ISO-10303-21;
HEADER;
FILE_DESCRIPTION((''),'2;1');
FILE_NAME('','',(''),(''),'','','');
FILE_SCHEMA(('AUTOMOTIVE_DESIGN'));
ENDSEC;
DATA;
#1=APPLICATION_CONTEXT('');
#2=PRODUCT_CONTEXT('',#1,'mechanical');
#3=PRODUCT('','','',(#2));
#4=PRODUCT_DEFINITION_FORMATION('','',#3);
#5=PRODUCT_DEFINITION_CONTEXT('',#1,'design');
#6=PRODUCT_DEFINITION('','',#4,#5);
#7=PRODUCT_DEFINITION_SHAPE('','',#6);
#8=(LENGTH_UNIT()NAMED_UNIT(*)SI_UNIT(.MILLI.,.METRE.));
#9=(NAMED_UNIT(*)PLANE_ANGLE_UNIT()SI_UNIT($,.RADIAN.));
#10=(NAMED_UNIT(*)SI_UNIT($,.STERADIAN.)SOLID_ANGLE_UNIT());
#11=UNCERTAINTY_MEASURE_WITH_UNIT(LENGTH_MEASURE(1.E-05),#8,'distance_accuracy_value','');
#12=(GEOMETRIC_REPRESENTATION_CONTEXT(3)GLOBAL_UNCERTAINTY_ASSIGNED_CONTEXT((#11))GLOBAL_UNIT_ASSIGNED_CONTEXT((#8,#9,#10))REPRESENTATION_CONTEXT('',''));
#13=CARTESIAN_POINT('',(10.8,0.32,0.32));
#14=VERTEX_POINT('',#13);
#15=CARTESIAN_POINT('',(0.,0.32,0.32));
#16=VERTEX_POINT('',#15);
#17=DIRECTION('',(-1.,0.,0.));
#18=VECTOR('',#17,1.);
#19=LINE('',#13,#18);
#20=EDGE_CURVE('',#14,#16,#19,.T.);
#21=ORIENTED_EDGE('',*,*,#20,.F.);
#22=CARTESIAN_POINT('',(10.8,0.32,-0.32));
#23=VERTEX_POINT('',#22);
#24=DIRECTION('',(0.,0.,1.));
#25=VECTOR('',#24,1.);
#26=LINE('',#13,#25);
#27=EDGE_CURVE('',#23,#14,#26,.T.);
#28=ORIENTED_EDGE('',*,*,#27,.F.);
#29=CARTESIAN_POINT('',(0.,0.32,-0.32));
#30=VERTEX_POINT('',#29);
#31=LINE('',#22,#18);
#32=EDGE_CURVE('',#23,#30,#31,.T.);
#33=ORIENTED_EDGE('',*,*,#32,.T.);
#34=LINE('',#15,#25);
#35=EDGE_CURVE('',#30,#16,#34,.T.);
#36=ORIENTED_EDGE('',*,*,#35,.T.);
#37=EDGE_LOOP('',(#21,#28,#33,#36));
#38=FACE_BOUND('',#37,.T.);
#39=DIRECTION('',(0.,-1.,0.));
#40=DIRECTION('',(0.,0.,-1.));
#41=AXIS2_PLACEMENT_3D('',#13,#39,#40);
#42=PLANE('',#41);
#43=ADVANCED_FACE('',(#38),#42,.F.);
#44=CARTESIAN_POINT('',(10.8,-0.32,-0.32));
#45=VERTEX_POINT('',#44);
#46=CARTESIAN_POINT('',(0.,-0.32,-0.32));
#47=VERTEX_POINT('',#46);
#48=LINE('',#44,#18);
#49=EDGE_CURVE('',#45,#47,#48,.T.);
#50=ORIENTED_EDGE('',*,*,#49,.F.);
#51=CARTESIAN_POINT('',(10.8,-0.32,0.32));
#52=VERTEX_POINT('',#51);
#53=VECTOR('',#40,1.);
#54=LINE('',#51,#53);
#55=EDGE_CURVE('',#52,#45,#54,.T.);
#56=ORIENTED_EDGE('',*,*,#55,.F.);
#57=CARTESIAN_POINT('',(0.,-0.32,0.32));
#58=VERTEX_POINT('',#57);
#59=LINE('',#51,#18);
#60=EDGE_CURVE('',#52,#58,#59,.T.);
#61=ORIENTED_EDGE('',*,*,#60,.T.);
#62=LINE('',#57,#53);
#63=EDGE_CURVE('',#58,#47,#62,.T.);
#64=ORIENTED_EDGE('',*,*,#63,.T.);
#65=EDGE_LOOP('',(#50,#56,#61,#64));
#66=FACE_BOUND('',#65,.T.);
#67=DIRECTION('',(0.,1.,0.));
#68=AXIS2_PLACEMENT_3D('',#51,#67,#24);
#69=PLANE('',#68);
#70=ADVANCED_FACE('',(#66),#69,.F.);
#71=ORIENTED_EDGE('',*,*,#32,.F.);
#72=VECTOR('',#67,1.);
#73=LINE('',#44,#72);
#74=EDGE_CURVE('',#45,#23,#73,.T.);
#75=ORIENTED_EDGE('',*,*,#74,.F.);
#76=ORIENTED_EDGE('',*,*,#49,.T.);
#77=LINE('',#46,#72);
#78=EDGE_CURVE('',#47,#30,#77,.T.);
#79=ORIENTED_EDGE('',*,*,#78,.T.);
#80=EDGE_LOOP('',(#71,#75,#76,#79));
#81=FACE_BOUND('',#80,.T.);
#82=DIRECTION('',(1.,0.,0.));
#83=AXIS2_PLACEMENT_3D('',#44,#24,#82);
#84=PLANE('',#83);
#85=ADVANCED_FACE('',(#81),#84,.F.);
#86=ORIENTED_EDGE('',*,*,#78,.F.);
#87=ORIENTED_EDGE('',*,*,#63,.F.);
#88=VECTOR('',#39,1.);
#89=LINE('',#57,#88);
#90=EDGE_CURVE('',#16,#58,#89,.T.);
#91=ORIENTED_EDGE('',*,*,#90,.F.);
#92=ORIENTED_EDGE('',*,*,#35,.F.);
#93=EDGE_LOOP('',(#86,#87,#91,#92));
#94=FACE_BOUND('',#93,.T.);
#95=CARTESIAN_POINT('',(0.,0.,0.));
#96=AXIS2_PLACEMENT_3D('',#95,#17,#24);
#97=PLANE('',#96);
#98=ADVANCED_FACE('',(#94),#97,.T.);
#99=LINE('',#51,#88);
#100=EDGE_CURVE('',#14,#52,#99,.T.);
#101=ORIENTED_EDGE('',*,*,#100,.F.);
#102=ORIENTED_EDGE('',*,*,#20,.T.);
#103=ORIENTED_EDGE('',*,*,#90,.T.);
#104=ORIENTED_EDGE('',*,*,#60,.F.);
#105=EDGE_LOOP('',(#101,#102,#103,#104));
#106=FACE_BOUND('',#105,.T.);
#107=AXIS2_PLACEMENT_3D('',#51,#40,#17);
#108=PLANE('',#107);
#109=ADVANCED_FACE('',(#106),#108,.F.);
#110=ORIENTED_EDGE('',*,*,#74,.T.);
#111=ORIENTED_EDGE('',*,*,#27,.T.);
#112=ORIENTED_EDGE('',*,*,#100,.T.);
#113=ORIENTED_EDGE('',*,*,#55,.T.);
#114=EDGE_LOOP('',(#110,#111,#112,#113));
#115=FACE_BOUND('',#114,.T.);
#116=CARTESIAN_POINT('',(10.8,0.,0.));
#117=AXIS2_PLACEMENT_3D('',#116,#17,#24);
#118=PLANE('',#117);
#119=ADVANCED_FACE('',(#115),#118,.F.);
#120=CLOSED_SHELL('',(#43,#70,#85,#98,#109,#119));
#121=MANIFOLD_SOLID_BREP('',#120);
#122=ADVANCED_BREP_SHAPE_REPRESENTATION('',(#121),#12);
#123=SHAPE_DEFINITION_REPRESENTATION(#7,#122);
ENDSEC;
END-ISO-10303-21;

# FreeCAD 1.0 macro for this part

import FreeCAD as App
import Part
import Sketcher

V = App.Vector
Q = App.Units.Quantity


def add_polygon(sketch, points):
    """Adds a closed chain of lines whose ends are joined by coincident constraints."""
    first, n = sketch.GeometryCount, len(points)
    for a, b in zip(points, points[1:] + points[:1]):
        sketch.addGeometry(Part.LineSegment(App.Vector(*a, 0), App.Vector(*b, 0)), False)
    for i in range(n):
        sketch.addConstraint(Sketcher.Constraint("Coincident", first + i, 2, first + (i + 1) % n, 1))

doc = App.newDocument("Part")
body = doc.addObject("PartDesign::Body", "Body")

# Sketch on YZ plane
sketch1 = doc.addObject("Sketcher::SketchObject", "Sketch")
body.addObject(sketch1)
sketch1.AttachmentSupport = (doc.YZ_Plane, [""])
sketch1.MapMode = "FlatFace"
add_polygon(sketch1, [(0.32, 0.32), (-0.32, 0.32), (-0.32, -0.32), (0.32, -0.32)])  # lines 0-3
sketch1.addConstraint([
    Sketcher.Constraint("Horizontal", 0),
    Sketcher.Constraint("Vertical", 1),
    Sketcher.Constraint("Horizontal", 2),
    Sketcher.Constraint("Vertical", 3),
    Sketcher.Constraint("Symmetric", 0, 2, 2, 2, -1, 1),
    Sketcher.Constraint("Equal", 2, 1),
    Sketcher.Constraint("DistanceX", 0, 2, 0, 1, Q("0.64 mm")),
])
pad1 = doc.addObject("PartDesign::Pad", "Pad")
body.addObject(pad1)
pad1.Profile = sketch1
pad1.Length = 10.8

doc.recompute()
